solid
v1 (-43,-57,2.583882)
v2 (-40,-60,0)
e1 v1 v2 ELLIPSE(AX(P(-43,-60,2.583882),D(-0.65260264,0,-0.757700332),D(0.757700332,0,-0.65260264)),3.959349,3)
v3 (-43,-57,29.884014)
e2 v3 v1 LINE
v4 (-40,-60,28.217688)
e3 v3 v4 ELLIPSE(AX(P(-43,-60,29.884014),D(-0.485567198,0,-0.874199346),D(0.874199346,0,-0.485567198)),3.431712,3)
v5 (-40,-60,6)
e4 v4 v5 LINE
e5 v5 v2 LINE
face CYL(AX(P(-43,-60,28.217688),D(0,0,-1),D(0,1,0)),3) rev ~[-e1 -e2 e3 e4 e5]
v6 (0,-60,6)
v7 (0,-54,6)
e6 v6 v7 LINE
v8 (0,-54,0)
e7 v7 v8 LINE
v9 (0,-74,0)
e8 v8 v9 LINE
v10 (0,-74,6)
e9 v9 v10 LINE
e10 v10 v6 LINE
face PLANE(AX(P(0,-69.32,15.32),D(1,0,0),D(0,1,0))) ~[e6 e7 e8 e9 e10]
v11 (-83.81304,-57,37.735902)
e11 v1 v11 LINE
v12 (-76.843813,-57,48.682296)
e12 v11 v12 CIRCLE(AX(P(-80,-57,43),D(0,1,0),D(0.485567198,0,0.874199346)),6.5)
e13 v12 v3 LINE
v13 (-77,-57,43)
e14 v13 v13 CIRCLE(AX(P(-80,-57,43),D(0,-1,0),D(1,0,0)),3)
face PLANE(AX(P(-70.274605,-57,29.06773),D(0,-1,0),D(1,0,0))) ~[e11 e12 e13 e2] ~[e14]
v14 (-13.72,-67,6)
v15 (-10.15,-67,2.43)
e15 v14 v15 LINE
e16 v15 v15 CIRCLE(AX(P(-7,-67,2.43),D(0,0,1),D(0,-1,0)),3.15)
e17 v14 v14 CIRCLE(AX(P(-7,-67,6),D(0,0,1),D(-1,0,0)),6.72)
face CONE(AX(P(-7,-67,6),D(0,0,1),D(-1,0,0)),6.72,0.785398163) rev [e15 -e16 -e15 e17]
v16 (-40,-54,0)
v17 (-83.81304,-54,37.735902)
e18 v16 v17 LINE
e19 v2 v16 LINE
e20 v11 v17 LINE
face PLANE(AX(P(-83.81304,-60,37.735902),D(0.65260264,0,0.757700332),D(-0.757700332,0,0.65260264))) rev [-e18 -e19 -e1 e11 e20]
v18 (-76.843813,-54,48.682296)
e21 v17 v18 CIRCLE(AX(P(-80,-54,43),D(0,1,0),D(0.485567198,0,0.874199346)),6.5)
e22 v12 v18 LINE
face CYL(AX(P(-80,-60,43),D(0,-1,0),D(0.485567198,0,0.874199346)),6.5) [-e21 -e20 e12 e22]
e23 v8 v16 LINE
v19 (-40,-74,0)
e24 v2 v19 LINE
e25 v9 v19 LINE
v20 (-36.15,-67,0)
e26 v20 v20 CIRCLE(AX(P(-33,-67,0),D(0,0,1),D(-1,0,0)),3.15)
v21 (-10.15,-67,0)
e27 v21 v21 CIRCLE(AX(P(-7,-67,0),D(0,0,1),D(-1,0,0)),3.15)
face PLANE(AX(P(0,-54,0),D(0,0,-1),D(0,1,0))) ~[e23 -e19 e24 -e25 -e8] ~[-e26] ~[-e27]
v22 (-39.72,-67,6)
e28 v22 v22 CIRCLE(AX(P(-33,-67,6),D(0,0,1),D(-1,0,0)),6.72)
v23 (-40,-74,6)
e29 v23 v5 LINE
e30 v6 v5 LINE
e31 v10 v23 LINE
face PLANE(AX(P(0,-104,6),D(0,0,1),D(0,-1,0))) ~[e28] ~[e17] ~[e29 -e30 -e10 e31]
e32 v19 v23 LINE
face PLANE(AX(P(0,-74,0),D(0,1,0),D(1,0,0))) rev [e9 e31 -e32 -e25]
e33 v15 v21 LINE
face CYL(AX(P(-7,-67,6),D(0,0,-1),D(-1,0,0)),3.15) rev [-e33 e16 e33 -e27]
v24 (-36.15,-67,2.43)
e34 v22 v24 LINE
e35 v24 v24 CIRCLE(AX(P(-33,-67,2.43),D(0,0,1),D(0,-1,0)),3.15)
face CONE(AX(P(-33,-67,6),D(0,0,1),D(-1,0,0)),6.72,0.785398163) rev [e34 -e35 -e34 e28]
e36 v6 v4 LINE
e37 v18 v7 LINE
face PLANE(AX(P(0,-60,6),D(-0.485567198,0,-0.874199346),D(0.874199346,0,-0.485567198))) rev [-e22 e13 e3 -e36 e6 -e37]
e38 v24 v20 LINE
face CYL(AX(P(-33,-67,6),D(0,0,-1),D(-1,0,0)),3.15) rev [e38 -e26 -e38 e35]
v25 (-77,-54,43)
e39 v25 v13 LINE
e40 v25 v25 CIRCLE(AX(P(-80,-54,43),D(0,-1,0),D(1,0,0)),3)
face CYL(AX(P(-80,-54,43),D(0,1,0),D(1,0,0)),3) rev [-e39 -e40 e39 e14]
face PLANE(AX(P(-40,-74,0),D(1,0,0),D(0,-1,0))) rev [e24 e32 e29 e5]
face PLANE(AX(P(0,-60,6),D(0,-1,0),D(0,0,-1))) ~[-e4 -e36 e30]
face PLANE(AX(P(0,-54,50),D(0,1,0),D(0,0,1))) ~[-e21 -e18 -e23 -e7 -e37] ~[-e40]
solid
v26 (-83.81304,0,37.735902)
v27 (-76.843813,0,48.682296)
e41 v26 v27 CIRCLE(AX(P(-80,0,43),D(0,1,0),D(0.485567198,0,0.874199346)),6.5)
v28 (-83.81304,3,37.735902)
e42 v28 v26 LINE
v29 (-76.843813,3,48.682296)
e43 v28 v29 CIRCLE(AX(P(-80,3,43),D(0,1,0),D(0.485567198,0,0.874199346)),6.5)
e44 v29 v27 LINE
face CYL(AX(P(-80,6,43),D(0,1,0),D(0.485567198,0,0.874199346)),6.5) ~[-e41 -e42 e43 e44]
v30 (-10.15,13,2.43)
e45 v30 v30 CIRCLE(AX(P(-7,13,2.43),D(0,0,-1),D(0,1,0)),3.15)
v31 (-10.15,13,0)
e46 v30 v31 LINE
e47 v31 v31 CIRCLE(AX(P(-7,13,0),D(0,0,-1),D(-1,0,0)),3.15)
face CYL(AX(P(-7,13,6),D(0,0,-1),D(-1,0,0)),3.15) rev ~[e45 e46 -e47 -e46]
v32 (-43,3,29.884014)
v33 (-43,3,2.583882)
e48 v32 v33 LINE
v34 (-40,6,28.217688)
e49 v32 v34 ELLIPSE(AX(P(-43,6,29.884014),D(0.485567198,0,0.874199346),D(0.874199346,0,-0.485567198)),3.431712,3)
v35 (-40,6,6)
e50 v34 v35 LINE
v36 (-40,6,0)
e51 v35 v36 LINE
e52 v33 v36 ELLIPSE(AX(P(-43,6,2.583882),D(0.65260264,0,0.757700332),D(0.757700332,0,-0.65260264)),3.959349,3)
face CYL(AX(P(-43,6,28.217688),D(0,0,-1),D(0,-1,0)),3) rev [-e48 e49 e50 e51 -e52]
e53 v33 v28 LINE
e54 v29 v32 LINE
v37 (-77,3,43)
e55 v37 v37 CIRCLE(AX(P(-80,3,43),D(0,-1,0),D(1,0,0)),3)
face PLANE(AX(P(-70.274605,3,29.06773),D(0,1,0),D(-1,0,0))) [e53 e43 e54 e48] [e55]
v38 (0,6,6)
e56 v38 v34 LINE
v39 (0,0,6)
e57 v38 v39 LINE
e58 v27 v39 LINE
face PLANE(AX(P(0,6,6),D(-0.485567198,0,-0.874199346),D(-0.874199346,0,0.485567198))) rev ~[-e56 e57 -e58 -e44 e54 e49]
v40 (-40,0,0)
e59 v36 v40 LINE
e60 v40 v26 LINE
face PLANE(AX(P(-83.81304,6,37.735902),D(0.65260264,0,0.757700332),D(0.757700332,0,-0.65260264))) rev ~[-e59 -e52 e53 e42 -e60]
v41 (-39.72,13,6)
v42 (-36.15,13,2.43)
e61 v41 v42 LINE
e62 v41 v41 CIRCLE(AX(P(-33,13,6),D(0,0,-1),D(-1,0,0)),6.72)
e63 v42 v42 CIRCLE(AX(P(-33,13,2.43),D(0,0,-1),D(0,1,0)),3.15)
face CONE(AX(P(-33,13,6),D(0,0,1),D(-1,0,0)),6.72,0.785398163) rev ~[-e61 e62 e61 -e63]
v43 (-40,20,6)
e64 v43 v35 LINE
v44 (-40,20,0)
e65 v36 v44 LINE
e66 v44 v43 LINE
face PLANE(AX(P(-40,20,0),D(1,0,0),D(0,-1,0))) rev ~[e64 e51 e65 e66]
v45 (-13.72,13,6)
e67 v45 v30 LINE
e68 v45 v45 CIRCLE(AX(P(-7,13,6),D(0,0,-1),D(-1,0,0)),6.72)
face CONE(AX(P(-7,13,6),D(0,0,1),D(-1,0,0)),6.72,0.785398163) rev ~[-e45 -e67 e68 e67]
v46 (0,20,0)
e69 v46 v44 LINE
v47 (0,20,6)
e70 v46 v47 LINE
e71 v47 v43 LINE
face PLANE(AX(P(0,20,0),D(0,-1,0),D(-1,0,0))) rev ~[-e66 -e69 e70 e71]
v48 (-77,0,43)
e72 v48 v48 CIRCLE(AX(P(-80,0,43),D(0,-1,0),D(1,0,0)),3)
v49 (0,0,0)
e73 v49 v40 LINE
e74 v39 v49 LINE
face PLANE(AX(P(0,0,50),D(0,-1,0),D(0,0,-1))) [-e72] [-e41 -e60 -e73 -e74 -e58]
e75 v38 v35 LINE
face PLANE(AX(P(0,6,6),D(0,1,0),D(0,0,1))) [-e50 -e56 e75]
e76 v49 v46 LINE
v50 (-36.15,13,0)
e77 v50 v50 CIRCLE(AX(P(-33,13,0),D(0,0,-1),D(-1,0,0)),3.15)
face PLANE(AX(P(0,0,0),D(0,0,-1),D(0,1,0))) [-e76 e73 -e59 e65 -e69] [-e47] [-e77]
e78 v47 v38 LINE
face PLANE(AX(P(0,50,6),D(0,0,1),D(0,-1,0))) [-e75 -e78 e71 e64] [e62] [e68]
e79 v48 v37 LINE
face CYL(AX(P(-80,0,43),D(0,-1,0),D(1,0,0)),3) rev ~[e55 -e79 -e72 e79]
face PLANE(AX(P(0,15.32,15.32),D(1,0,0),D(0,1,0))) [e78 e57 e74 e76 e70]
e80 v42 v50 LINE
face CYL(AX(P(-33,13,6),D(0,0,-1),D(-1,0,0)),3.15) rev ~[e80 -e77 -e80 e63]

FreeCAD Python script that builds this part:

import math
import FreeCAD as App
import Part
import Sketcher
Q = App.Units.Quantity


def edges_at(feature, points):
    """Names of the edges that pass closest to the given points."""
    edges = feature.Shape.Edges
    near = lambda p: min(range(len(edges)), key=lambda i: edges[i].distToShape(Part.Vertex(*p))[0])
    return sorted({f"Edge{near(p) + 1}" for p in points})


def add_polygon(sketch, points):
    """Adds a closed chain of lines whose ends are joined by coincident constraints."""
    first, n = sketch.GeometryCount, len(points)
    for a, b in zip(points, points[1:] + points[:1]):
        sketch.addGeometry(Part.LineSegment(App.Vector(*a, 0), App.Vector(*b, 0)), False)
    for i in range(n):
        sketch.addConstraint(Sketcher.Constraint("Coincident", first + i, 2, first + (i + 1) % n, 1))

doc = App.newDocument("Part")
params = doc.addObject("Spreadsheet::Sheet", "Params")
for row, (alias, value) in enumerate([
    ("sketch1_width", "50 mm"),
    ("sketch1_width2", "44 mm"),
    ("pad1_length", "100 mm"),
    ("sketch2_diameter", "6 mm"),
    ("pocket1_length", "25 mm"),
    ("sketch3_width", "60 mm"),
    ("sketch3_width2", "100 mm"),
    ("sketch3_height", "14 mm"),
    ("sketch3_height2", "44 mm"),
    ("pocket2_length", "6 mm"),
    ("sketch4_radius", "6.5 mm"),
    ("sketch4_width", "60 mm"),
    ("sketch4_width2", "100 mm"),
    ("sketch4_height", "50 mm"),
    ("sketch4_height2", "44 mm"),
    ("pocket3_length", "25 mm"),
    ("pocket4_length", "3 mm"),
    ("fillet_radius", "3 mm"),
    ("sketch6_diameter", "6.3 mm"),
    ("hole_diameter", "6.3 mm"),
    ("hole_csink_diameter", "13.44 mm"),
], start=1):
    params.set(f"A{row}", alias)
    params.set(f"B{row}", "=" + value)
    params.setAlias(f"B{row}", alias)

body = doc.addObject("PartDesign::Body", "Body")

sketch1 = body.newObject("Sketcher::SketchObject", "Sketch")
sketch1.AttachmentSupport = (doc.getObject("YZ_Plane"), [""])
sketch1.MapMode = "FlatFace"
add_polygon(sketch1, [(0, 50), (0, 0), (50, 0), (50, 6), (6, 6), (6, 50)])
sketch1.addConstraint(Sketcher.Constraint("Vertical", 0))
sketch1.addConstraint(Sketcher.Constraint("Horizontal", 1))
sketch1.addConstraint(Sketcher.Constraint("Vertical", 2))
sketch1.addConstraint(Sketcher.Constraint("Horizontal", 3))
sketch1.addConstraint(Sketcher.Constraint("Vertical", 4))
sketch1.addConstraint(Sketcher.Constraint("Horizontal", 5))
sketch1.addConstraint(Sketcher.Constraint("Coincident", 0, 2, -1, 1))
sketch1.addConstraint(Sketcher.Constraint("Equal", 1, 0))
sketch1.addConstraint(Sketcher.Constraint("Equal", 5, 2))
sketch1.addConstraint(Sketcher.Constraint("DistanceX", 1, 1, 1, 2, Q("50 mm")))
sketch1.addConstraint(Sketcher.Constraint("DistanceX", 3, 2, 3, 1, Q("44 mm")))
sketch1.setExpression("Constraints[15]", "Params.sketch1_width")
sketch1.setExpression("Constraints[16]", "Params.sketch1_width2")
pad1 = body.newObject("PartDesign::Pad", "Pad")
pad1.Profile = sketch1
pad1.setExpression("Length", "Params.pad1_length")
pad1.Reversed = True

sketch2 = body.newObject("Sketcher::SketchObject", "Sketch001")
sketch2.AttachmentSupport = (doc.getObject("XZ_Plane"), [""])
sketch2.MapMode = "FlatFace"
sketch2.addGeometry(Part.Circle(App.Vector(-80, 43, 0), App.Vector(0, 0, 1), 3), False)
sketch2.addConstraint(Sketcher.Constraint("Diameter", 0, Q("6 mm")))
sketch2.addConstraint(Sketcher.Constraint("DistanceX", 0, 3, -1, 1, Q("80 mm")))
sketch2.addConstraint(Sketcher.Constraint("DistanceY", -1, 1, 0, 3, Q("43 mm")))
sketch2.setExpression("Constraints[0]", "Params.sketch2_diameter")
pocket1 = body.newObject("PartDesign::Pocket", "Pocket")
pocket1.Profile = sketch2
pocket1.setExpression("Length", "Params.pocket1_length")

sketch3 = body.newObject("Sketcher::SketchObject", "Sketch002")
sketch3.AttachmentSupport = (doc.getObject("XY_Plane"), [""])
sketch3.MapMode = "FlatFace"
add_polygon(sketch3, [(-40, 20), (-40, 6), (-100, 6), (-100, 50), (0, 50), (0, 20)])
sketch3.addConstraint(Sketcher.Constraint("Vertical", 0))
sketch3.addConstraint(Sketcher.Constraint("Horizontal", 1))
sketch3.addConstraint(Sketcher.Constraint("Vertical", 2))
sketch3.addConstraint(Sketcher.Constraint("Horizontal", 3))
sketch3.addConstraint(Sketcher.Constraint("Vertical", 4))
sketch3.addConstraint(Sketcher.Constraint("Horizontal", 5))
sketch3.addConstraint(Sketcher.Constraint("PointOnObject", 3, 2, -2))
sketch3.addConstraint(Sketcher.Constraint("DistanceX", 1, 2, 1, 1, Q("60 mm")))
sketch3.addConstraint(Sketcher.Constraint("DistanceX", 3, 1, 3, 2, Q("100 mm")))
sketch3.addConstraint(Sketcher.Constraint("DistanceY", 0, 2, 0, 1, Q("14 mm")))
sketch3.addConstraint(Sketcher.Constraint("DistanceY", 2, 1, 2, 2, Q("44 mm")))
sketch3.addConstraint(Sketcher.Constraint("DistanceY", -1, 1, 0, 2, Q("6 mm")))
sketch3.setExpression("Constraints[13]", "Params.sketch3_width")
sketch3.setExpression("Constraints[14]", "Params.sketch3_width2")
sketch3.setExpression("Constraints[15]", "Params.sketch3_height")
sketch3.setExpression("Constraints[16]", "Params.sketch3_height2")
pocket2 = body.newObject("PartDesign::Pocket", "Pocket001")
pocket2.Profile = sketch3
pocket2.setExpression("Length", "Params.pocket2_length")
pocket2.Reversed = True

sketch4 = body.newObject("Sketcher::SketchObject", "Sketch003")
sketch4.AttachmentSupport = (doc.getObject("XZ_Plane"), [""])
sketch4.MapMode = "FlatFace"
sketch4.AttachmentOffset = App.Placement(App.Vector(0, 0, -6), App.Rotation())
sketch4.addGeometry(Part.ArcOfCircle(Part.Circle(App.Vector(-80, 43, 0), App.Vector(0, 0, 1), 6.5), math.radians(60.95036), math.radians(234.08237)), False)
sketch4.addGeometry(Part.LineSegment(App.Vector(-83.81304, 37.735902, 0), App.Vector(-40, 0, 0)), False)
sketch4.addGeometry(Part.LineSegment(App.Vector(-40, 0, 0), App.Vector(-100, 0, 0)), False)
sketch4.addGeometry(Part.LineSegment(App.Vector(-100, 0, 0), App.Vector(-100, 50, 0)), False)
sketch4.addGeometry(Part.LineSegment(App.Vector(-100, 50, 0), App.Vector(0, 50, 0)), False)
sketch4.addGeometry(Part.LineSegment(App.Vector(0, 50, 0), App.Vector(0, 6, 0)), False)
sketch4.addGeometry(Part.LineSegment(App.Vector(0, 6, 0), App.Vector(-76.843813, 48.682296, 0)), False)
sketch4.addConstraint(Sketcher.Constraint("Coincident", 0, 2, 1, 1))
sketch4.addConstraint(Sketcher.Constraint("Coincident", 1, 2, 2, 1))
sketch4.addConstraint(Sketcher.Constraint("Coincident", 2, 2, 3, 1))
sketch4.addConstraint(Sketcher.Constraint("Coincident", 3, 2, 4, 1))
sketch4.addConstraint(Sketcher.Constraint("Coincident", 4, 2, 5, 1))
sketch4.addConstraint(Sketcher.Constraint("Coincident", 5, 2, 6, 1))
sketch4.addConstraint(Sketcher.Constraint("Tangent", 6, 2, 0, 1))
sketch4.addConstraint(Sketcher.Constraint("Horizontal", 2))
sketch4.addConstraint(Sketcher.Constraint("Vertical", 3))
sketch4.addConstraint(Sketcher.Constraint("Horizontal", 4))
sketch4.addConstraint(Sketcher.Constraint("Vertical", 5))
sketch4.addConstraint(Sketcher.Constraint("PointOnObject", 1, 2, -1))
sketch4.addConstraint(Sketcher.Constraint("PointOnObject", 4, 2, -2))
sketch4.addConstraint(Sketcher.Constraint("Radius", 0, Q("6.5 mm")))
sketch4.addConstraint(Sketcher.Constraint("DistanceX", 2, 2, 2, 1, Q("60 mm")))
sketch4.addConstraint(Sketcher.Constraint("DistanceX", 4, 1, 4, 2, Q("100 mm")))
sketch4.addConstraint(Sketcher.Constraint("DistanceY", 3, 1, 3, 2, Q("50 mm")))
sketch4.addConstraint(Sketcher.Constraint("DistanceY", 5, 2, 5, 1, Q("44 mm")))
sketch4.addConstraint(Sketcher.Constraint("DistanceX", 0, 3, -1, 1, Q("80 mm")))
sketch4.addConstraint(Sketcher.Constraint("DistanceY", -1, 1, 0, 3, Q("43 mm")))
sketch4.addConstraint(Sketcher.Constraint("DistanceX", 0, 2, -1, 1, Q("83.81304 mm")))
sketch4.setExpression("Constraints[13]", "Params.sketch4_radius")
sketch4.setExpression("Constraints[14]", "Params.sketch4_width")
sketch4.setExpression("Constraints[15]", "Params.sketch4_width2")
sketch4.setExpression("Constraints[16]", "Params.sketch4_height")
sketch4.setExpression("Constraints[17]", "Params.sketch4_height2")
pocket3 = body.newObject("PartDesign::Pocket", "Pocket002")
pocket3.Profile = sketch4
pocket3.setExpression("Length", "Params.pocket3_length")
pocket3.Reversed = True

sketch5 = body.newObject("Sketcher::SketchObject", "Sketch004")
sketch5.AttachmentSupport = (doc.getObject("XZ_Plane"), [""])
sketch5.MapMode = "FlatFace"
sketch5.AttachmentOffset = App.Placement(App.Vector(0, 0, -6), App.Rotation())
add_polygon(sketch5, [(-40, 28.217688), (-40, 0), (-106.405869, 23.903633), (-83.23548, 63.791901)])
sketch5.addConstraint(Sketcher.Constraint("Vertical", 0))
sketch5.addConstraint(Sketcher.Constraint("PointOnObject", 0, 2, -1))
sketch5.addConstraint(Sketcher.Constraint("DistanceX", 0, 2, -1, 1, Q("40 mm")))
sketch5.addConstraint(Sketcher.Constraint("DistanceY", -1, 1, 2, 2, Q("63.791901 mm")))
sketch5.addConstraint(Sketcher.Constraint("Distance", 2, Q("46.12961 mm")))
sketch5.addConstraint(Sketcher.Constraint("DistanceY", 0, 2, 0, 1, Q("28.217688 mm")))
sketch5.addConstraint(Sketcher.Constraint("DistanceX", 1, 2, -1, 1, Q("106.405869 mm")))
sketch5.addConstraint(Sketcher.Constraint("DistanceX", 2, 2, -1, 1, Q("83.23548 mm")))
pocket4 = body.newObject("PartDesign::Pocket", "Pocket003")
pocket4.Profile = sketch5
pocket4.setExpression("Length", "Params.pocket4_length")
pocket4.Reversed = True
doc.recompute()

fillet = body.newObject("PartDesign::Fillet", "Fillet")
fillet.Base = (pocket4, edges_at(pocket4, [(-40, 3, 14.109)]))
fillet.setExpression("Radius", "Params.fillet_radius")

sketch6 = body.newObject("Sketcher::SketchObject", "Sketch005")
sketch6.AttachmentSupport = (doc.getObject("XY_Plane"), [""])
sketch6.MapMode = "FlatFace"
sketch6.AttachmentOffset = App.Placement(App.Vector(0, 0, 6), App.Rotation())
sketch6.addGeometry(Part.Circle(App.Vector(-7, 13, 0), App.Vector(0, 0, 1), 3.15), False)
sketch6.addGeometry(Part.Circle(App.Vector(-33, 13, 0), App.Vector(0, 0, 1), 3.15), False)
sketch6.addConstraint(Sketcher.Constraint("Equal", 0, 1))
sketch6.addConstraint(Sketcher.Constraint("Horizontal", 0, 3, 1, 3))
sketch6.addConstraint(Sketcher.Constraint("Diameter", 0, Q("6.3 mm")))
sketch6.addConstraint(Sketcher.Constraint("DistanceX", 0, 3, -1, 1, Q("7 mm")))
sketch6.addConstraint(Sketcher.Constraint("DistanceY", -1, 1, 0, 3, Q("13 mm")))
sketch6.addConstraint(Sketcher.Constraint("DistanceX", 1, 3, -1, 1, Q("33 mm")))
sketch6.setExpression("Constraints[2]", "Params.sketch6_diameter")
doc.recompute()
hole = body.newObject("PartDesign::Hole", "Hole")
hole.Profile = sketch6
hole.ThreadType = "None"
hole.setExpression("Diameter", "Params.hole_diameter")
hole.DepthType = "ThroughAll"
hole.HoleCutType = "Countersink"
hole.setExpression("HoleCutDiameter", "Params.hole_csink_diameter")
hole.HoleCutCountersinkAngle = 90
body2 = doc.addObject("PartDesign::Body", "Body001")
doc.recompute()

mirroring = doc.addObject("Part::Mirroring", "Mirroring")
mirroring.Source = body
mirroring.Base = App.Vector(-44.424454, -27, 20.028233)
mirroring.Normal = App.Vector(0, -1, 0)
body2.BaseFeature = mirroring
doc.recompute()
mirroring.Visibility = False

doc.recompute()
